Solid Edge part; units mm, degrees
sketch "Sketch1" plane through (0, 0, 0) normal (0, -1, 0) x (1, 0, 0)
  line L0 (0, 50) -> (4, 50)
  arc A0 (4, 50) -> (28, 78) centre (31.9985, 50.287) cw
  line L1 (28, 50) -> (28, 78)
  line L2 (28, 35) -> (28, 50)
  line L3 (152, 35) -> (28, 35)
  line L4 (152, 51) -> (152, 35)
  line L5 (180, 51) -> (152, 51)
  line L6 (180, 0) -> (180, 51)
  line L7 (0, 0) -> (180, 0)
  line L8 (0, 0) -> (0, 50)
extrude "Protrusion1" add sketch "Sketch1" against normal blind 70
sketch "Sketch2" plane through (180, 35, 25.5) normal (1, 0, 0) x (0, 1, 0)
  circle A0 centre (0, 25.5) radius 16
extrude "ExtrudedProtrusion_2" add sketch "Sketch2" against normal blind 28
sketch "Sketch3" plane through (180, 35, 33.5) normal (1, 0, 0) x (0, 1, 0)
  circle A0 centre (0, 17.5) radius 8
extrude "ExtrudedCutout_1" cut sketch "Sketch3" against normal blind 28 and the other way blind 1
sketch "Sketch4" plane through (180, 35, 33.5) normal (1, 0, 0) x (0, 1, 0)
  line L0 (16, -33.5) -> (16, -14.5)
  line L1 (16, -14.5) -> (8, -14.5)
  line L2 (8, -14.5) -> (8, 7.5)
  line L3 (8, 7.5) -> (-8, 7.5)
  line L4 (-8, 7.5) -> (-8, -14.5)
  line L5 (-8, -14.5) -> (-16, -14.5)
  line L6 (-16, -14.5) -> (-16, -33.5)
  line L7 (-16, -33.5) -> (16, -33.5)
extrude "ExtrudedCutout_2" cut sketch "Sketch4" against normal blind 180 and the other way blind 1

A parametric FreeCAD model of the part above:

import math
import FreeCAD as App
import Part
import Sketcher
from FreeCAD import Vector
Q = App.Units.Quantity

doc = App.newDocument("Part")
body = doc.addObject("PartDesign::Body", "Body")

sketch1 = body.newObject("Sketcher::SketchObject", "Sketch")
sketch1.AttachmentSupport = (doc.getObject("XZ_Plane"), [""])
sketch1.MapMode = "FlatFace"
sketch1.addGeometry([
    Part.LineSegment(Vector(4, 50, 0), Vector(0, 50, 0)),
    Part.LineSegment(Vector(0, 50, 0), Vector(0, 0, 0)),
    Part.LineSegment(Vector(0, 0, 0), Vector(180, 0, 0)),
    Part.LineSegment(Vector(180, 0, 0), Vector(180, 51, 0)),
    Part.LineSegment(Vector(180, 51, 0), Vector(152, 51, 0)),
    Part.LineSegment(Vector(152, 51, 0), Vector(152, 35, 0)),
    Part.LineSegment(Vector(152, 35, 0), Vector(28, 35, 0)),
    Part.LineSegment(Vector(28, 35, 0), Vector(28, 78, 0)),
    Part.ArcOfCircle(Part.Circle(Vector(32, 50.3, 0), Vector(0, 0, 1), 28), math.radians(98), math.radians(181)),
], False)
sketch1.addConstraint([
    Sketcher.Constraint("Coincident", 0, 2, 1, 1),
    Sketcher.Constraint("Coincident", 1, 2, 2, 1),
    Sketcher.Constraint("Coincident", 2, 2, 3, 1),
    Sketcher.Constraint("Coincident", 3, 2, 4, 1),
    Sketcher.Constraint("Coincident", 4, 2, 5, 1),
    Sketcher.Constraint("Coincident", 5, 2, 6, 1),
    Sketcher.Constraint("Coincident", 6, 2, 7, 1),
    Sketcher.Constraint("Coincident", 7, 2, 8, 1),
    Sketcher.Constraint("Coincident", 8, 2, 0, 1),
    Sketcher.Constraint("Horizontal", 0),
    Sketcher.Constraint("Vertical", 1),
    Sketcher.Constraint("Horizontal", 2),
    Sketcher.Constraint("Vertical", 3),
    Sketcher.Constraint("Horizontal", 4),
    Sketcher.Constraint("Vertical", 5),
    Sketcher.Constraint("Horizontal", 6),
    Sketcher.Constraint("Vertical", 7),
    Sketcher.Constraint("Coincident", 1, 2, -1, 1),
    Sketcher.Constraint("Radius", 8, Q("28 mm")),
    Sketcher.Constraint("DistanceX", 0, 2, 0, 1, Q("4 mm")),
    Sketcher.Constraint("DistanceX", 2, 1, 2, 2, Q("180 mm")),
    Sketcher.Constraint("DistanceX", 4, 2, 4, 1, Q("28 mm")),
    Sketcher.Constraint("DistanceX", 6, 2, 6, 1, Q("124 mm")),
    Sketcher.Constraint("DistanceY", 1, 2, 1, 1, Q("50 mm")),
    Sketcher.Constraint("DistanceY", 3, 1, 3, 2, Q("51 mm")),
    Sketcher.Constraint("DistanceY", 5, 2, 5, 1, Q("16 mm")),
    Sketcher.Constraint("DistanceY", 7, 1, 7, 2, Q("43 mm")),
])
pad1 = body.newObject("PartDesign::Pad", "Pad")
pad1.Profile = sketch1
pad1.Length = 70
pad1.Reversed = True

sketch2 = body.newObject("Sketcher::SketchObject", "Sketch001")
sketch2.AttachmentSupport = (doc.getObject("YZ_Plane"), [""])
sketch2.MapMode = "FlatFace"
sketch2.AttachmentOffset = App.Placement(Vector(0, 0, 180), App.Rotation())
sketch2.addGeometry(Part.Circle(Vector(35, 51, 0), Vector(0, 0, 1), 16), False)
sketch2.addConstraint([
    Sketcher.Constraint("Diameter", 0, Q("32 mm")),
    Sketcher.Constraint("DistanceX", -1, 1, 0, 3, Q("35 mm")),
    Sketcher.Constraint("DistanceY", -1, 1, 0, 3, Q("51 mm")),
])
pad2 = body.newObject("PartDesign::Pad", "Pad001")
pad2.Profile = sketch2
pad2.Length = 28
pad2.Reversed = True

sketch3 = body.newObject("Sketcher::SketchObject", "Sketch002")
sketch3.AttachmentSupport = (doc.getObject("YZ_Plane"), [""])
sketch3.MapMode = "FlatFace"
sketch3.AttachmentOffset = App.Placement(Vector(0, 0, 180), App.Rotation())
sketch3.addGeometry(Part.Circle(Vector(35, 51, 0), Vector(0, 0, 1), 8), False)
sketch3.addConstraint([
    Sketcher.Constraint("Diameter", 0, Q("16 mm")),
    Sketcher.Constraint("DistanceX", -1, 1, 0, 3, Q("35 mm")),
    Sketcher.Constraint("DistanceY", -1, 1, 0, 3, Q("51 mm")),
])
pocket1 = body.newObject("PartDesign::Pocket", "Pocket")
pocket1.Profile = sketch3
pocket1.Type = "TwoLengths"
pocket1.Length = 28
pocket1.Length2 = 1

sketch4 = body.newObject("Sketcher::SketchObject", "Sketch003")
sketch4.AttachmentSupport = (doc.getObject("YZ_Plane"), [""])
sketch4.MapMode = "FlatFace"
sketch4.AttachmentOffset = App.Placement(Vector(0, 0, 180), App.Rotation())
sketch4.addGeometry([
    Part.LineSegment(Vector(19, 0, 0), Vector(51, 0, 0)),
    Part.LineSegment(Vector(51, 0, 0), Vector(51, 19, 0)),
    Part.LineSegment(Vector(51, 19, 0), Vector(43, 19, 0)),
    Part.LineSegment(Vector(43, 19, 0), Vector(43, 41, 0)),
    Part.LineSegment(Vector(43, 41, 0), Vector(27, 41, 0)),
    Part.LineSegment(Vector(27, 41, 0), Vector(27, 19, 0)),
    Part.LineSegment(Vector(27, 19, 0), Vector(19, 19, 0)),
    Part.LineSegment(Vector(19, 19, 0), Vector(19, 0, 0)),
], False)
sketch4.addConstraint([
    Sketcher.Constraint("Coincident", 0, 2, 1, 1),
    Sketcher.Constraint("Coincident", 1, 2, 2, 1),
    Sketcher.Constraint("Coincident", 2, 2, 3, 1),
    Sketcher.Constraint("Coincident", 3, 2, 4, 1),
    Sketcher.Constraint("Coincident", 4, 2, 5, 1),
    Sketcher.Constraint("Coincident", 5, 2, 6, 1),
    Sketcher.Constraint("Coincident", 6, 2, 7, 1),
    Sketcher.Constraint("Coincident", 7, 2, 0, 1),
    Sketcher.Constraint("Horizontal", 0),
    Sketcher.Constraint("Vertical", 1),
    Sketcher.Constraint("Horizontal", 2),
    Sketcher.Constraint("Vertical", 3),
    Sketcher.Constraint("Horizontal", 4),
    Sketcher.Constraint("Vertical", 5),
    Sketcher.Constraint("Horizontal", 6),
    Sketcher.Constraint("Vertical", 7),
    Sketcher.Constraint("PointOnObject", 0, 2, -1),
    Sketcher.Constraint("Horizontal", 2, 2, 5, 2),
    Sketcher.Constraint("Equal", 2, 6),
    Sketcher.Constraint("DistanceX", 0, 1, 0, 2, Q("32 mm")),
    Sketcher.Constraint("DistanceX", 2, 2, 2, 1, Q("8 mm")),
    Sketcher.Constraint("DistanceY", 1, 1, 1, 2, Q("19 mm")),
    Sketcher.Constraint("DistanceY", 3, 1, 3, 2, Q("22 mm")),
    Sketcher.Constraint("DistanceX", -1, 1, 0, 2, Q("51 mm")),
])
pocket2 = body.newObject("PartDesign::Pocket", "Pocket001")
pocket2.Profile = sketch4
pocket2.Type = "ThroughAll"
pocket2.Midplane = True

doc.recompute()
